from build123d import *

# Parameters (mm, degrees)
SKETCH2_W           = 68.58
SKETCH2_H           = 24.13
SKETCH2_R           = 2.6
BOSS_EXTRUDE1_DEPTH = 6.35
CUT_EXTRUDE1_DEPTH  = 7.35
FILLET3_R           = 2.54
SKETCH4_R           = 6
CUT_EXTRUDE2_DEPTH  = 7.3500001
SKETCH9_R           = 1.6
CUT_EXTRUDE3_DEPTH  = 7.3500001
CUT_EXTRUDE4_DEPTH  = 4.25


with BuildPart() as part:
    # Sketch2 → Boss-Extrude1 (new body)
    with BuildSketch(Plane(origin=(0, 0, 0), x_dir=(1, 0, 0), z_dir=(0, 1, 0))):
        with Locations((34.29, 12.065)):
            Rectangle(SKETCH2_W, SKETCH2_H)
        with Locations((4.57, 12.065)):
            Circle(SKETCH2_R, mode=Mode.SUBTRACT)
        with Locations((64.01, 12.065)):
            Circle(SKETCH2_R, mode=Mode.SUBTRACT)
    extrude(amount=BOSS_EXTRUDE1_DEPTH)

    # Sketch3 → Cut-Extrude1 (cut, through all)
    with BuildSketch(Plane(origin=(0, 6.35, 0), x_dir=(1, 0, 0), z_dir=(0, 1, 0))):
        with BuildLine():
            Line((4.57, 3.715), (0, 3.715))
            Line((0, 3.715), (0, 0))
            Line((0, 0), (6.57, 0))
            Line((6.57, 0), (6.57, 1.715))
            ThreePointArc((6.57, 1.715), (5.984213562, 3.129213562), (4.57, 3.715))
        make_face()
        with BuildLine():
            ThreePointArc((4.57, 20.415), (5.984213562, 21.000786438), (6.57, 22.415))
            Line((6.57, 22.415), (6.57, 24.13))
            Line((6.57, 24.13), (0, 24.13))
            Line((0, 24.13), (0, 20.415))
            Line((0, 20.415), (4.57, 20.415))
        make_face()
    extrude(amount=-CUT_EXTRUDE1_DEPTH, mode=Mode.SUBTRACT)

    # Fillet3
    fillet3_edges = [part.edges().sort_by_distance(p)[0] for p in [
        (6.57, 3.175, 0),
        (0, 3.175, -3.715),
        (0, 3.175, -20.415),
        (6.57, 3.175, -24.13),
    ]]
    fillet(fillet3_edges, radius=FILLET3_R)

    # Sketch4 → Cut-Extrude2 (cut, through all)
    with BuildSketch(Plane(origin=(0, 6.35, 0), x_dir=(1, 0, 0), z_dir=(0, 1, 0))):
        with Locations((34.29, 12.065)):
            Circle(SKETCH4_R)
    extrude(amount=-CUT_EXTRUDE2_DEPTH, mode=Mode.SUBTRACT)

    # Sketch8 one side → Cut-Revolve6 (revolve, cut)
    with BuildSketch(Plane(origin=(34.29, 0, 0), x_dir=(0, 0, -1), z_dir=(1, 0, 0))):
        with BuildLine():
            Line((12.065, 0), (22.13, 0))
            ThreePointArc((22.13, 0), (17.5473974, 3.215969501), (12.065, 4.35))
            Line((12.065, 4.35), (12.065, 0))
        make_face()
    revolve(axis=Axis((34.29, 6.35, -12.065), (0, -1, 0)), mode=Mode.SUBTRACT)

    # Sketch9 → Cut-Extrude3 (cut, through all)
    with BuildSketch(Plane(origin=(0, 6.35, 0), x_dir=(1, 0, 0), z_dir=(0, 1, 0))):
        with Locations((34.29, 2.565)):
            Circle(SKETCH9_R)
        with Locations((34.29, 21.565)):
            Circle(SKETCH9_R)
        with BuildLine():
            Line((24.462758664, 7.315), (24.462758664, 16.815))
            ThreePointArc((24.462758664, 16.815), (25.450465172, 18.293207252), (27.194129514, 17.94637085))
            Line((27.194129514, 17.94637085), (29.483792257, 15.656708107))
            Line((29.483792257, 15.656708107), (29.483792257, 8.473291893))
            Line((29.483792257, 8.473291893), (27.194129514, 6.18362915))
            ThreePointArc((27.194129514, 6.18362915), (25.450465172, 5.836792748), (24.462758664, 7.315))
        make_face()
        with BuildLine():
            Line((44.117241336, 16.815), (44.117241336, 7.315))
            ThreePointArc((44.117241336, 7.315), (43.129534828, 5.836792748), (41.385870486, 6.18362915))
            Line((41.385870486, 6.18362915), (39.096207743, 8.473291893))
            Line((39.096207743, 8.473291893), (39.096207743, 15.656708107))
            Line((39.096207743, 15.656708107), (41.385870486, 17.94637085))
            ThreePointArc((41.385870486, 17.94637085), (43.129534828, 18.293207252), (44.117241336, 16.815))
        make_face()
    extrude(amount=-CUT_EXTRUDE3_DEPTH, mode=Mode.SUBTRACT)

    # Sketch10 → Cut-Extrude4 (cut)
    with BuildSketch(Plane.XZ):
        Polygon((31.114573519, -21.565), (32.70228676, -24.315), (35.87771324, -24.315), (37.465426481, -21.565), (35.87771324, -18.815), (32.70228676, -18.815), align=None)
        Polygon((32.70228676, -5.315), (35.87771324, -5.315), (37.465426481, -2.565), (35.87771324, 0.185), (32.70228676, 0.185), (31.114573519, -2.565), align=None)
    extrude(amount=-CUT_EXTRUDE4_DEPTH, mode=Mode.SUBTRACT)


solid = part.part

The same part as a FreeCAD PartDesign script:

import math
import FreeCAD as App
import Part
import Sketcher

V = App.Vector
Q = App.Units.Quantity


def edges_at(feature, points):
    """Names of the edges that pass closest to the given points."""
    edges = feature.Shape.Edges
    near = lambda p: min(range(len(edges)), key=lambda i: edges[i].distToShape(Part.Vertex(*p))[0])
    return sorted({f"Edge{near(p) + 1}" for p in points})

doc = App.newDocument("Part")
body = doc.addObject("PartDesign::Body", "Body")

# Sketch on XZ plane
sketch1 = doc.addObject("Sketcher::SketchObject", "Sketch")
body.addObject(sketch1)
sketch1.AttachmentSupport = (doc.XZ_Plane, [""])
sketch1.MapMode = "FlatFace"
sketch1.addGeometry([
    Part.LineSegment(V(0, -24.1, 0), V(0, 0, 0)),  # 0
    Part.LineSegment(V(0, 0, 0), V(68.6, 0, 0)),  # 1
    Part.LineSegment(V(68.6, 0, 0), V(68.6, -24.1, 0)),  # 2
    Part.LineSegment(V(68.6, -24.1, 0), V(0, -24.1, 0)),  # 3
    Part.Circle(V(4.6, -12.1, 0), V(0, 0, 1), 2.6),  # 4
    Part.Circle(V(64, -12.1, 0), V(0, 0, 1), 2.6),  # 5
], False)
sketch1.addConstraint([
    Sketcher.Constraint("Coincident", 0, 2, 1, 1),
    Sketcher.Constraint("Coincident", 1, 2, 2, 1),
    Sketcher.Constraint("Coincident", 2, 2, 3, 1),
    Sketcher.Constraint("Coincident", 3, 2, 0, 1),
    Sketcher.Constraint("Vertical", 0),
    Sketcher.Constraint("Horizontal", 1),
    Sketcher.Constraint("Vertical", 2),
    Sketcher.Constraint("Horizontal", 3),
    Sketcher.Constraint("Coincident", 0, 2, -1, 1),
    Sketcher.Constraint("Equal", 4, 5),
    Sketcher.Constraint("Horizontal", 4, 3, 5, 3),
    Sketcher.Constraint("Diameter", 4, 5.2),
    Sketcher.Constraint("DistanceX", 1, 1, 1, 2, 68.58),
    Sketcher.Constraint("DistanceY", 0, 1, 0, 2, 24.13),
    Sketcher.Constraint("DistanceX", -1, 1, 4, 3, 4.57),
    Sketcher.Constraint("DistanceX", -1, 1, 5, 3, 64.01),
    Sketcher.Constraint("DistanceY", 4, 3, -1, 1, 12.065),
])
pad1 = doc.addObject("PartDesign::Pad", "Pad")
body.addObject(pad1)
pad1.Profile = sketch1
pad1.Length = 6.35
pad1.Reversed = True

# Sketch on XZ plane
sketch2 = doc.addObject("Sketcher::SketchObject", "Sketch001")
body.addObject(sketch2)
sketch2.AttachmentSupport = (doc.XZ_Plane, [""])
sketch2.MapMode = "FlatFace"
sketch2.AttachmentOffset = App.Placement(V(0, 0, -6.35), App.Rotation())
sketch2.addGeometry([
    Part.LineSegment(V(4.6, -3.7, 0), V(0, -3.7, 0)),  # 0
    Part.LineSegment(V(0, -3.7, 0), V(0, 0, 0)),  # 1
    Part.LineSegment(V(0, 0, 0), V(6.6, 0, 0)),  # 2
    Part.LineSegment(V(6.6, 0, 0), V(6.6, -1.7, 0)),  # 3
    Part.ArcOfCircle(Part.Circle(V(4.6, -1.7, 0), V(0, 0, 1), 2), math.radians(-90), math.radians(0)),  # 4
    Part.ArcOfCircle(Part.Circle(V(4.6, -22.4, 0), V(0, 0, 1), 2), math.radians(0), math.radians(90)),  # 5
    Part.LineSegment(V(6.6, -22.4, 0), V(6.6, -24.1, 0)),  # 6
    Part.LineSegment(V(6.6, -24.1, 0), V(0, -24.1, 0)),  # 7
    Part.LineSegment(V(0, -24.1, 0), V(0, -20.4, 0)),  # 8
    Part.LineSegment(V(0, -20.4, 0), V(4.6, -20.4, 0)),  # 9
], False)
sketch2.addConstraint([
    Sketcher.Constraint("Coincident", 0, 2, 1, 1),
    Sketcher.Constraint("Coincident", 1, 2, 2, 1),
    Sketcher.Constraint("Coincident", 2, 2, 3, 1),
    Sketcher.Constraint("Tangent", 3, 2, 4, 2),
    Sketcher.Constraint("Tangent", 4, 1, 0, 1),
    Sketcher.Constraint("Tangent", 5, 1, 6, 1),
    Sketcher.Constraint("Coincident", 6, 2, 7, 1),
    Sketcher.Constraint("Coincident", 7, 2, 8, 1),
    Sketcher.Constraint("Coincident", 8, 2, 9, 1),
    Sketcher.Constraint("Tangent", 9, 2, 5, 2),
    Sketcher.Constraint("Horizontal", 0),
    Sketcher.Constraint("Vertical", 1),
    Sketcher.Constraint("Horizontal", 2),
    Sketcher.Constraint("Vertical", 3),
    Sketcher.Constraint("Vertical", 6),
    Sketcher.Constraint("Horizontal", 7),
    Sketcher.Constraint("Vertical", 8),
    Sketcher.Constraint("Horizontal", 9),
    Sketcher.Constraint("Coincident", 1, 2, -1, 1),
    Sketcher.Constraint("Equal", 4, 5),
    Sketcher.Constraint("PointOnObject", 7, 2, -2),
    Sketcher.Constraint("Vertical", 4, 3, 5, 3),
    Sketcher.Constraint("Equal", 3, 6),
    Sketcher.Constraint("Radius", 4, 2.0),
    Sketcher.Constraint("DistanceX", 0, 2, 0, 1, 4.57),
    Sketcher.Constraint("DistanceY", 5, 3, 4, 3, 20.7),
    Sketcher.Constraint("DistanceY", 1, 1, 1, 2, 3.715),
])
pocket1 = doc.addObject("PartDesign::Pocket", "Pocket")
body.addObject(pocket1)
pocket1.Profile = sketch2
pocket1.Type = "ThroughAll"
pocket1.Reversed = True
doc.recompute()

fillet = doc.addObject("PartDesign::Fillet", "Fillet")
body.addObject(fillet)
fillet.Base = (pocket1, edges_at(pocket1, [
    (6.57, 3.175, 0),
    (0, 3.175, -3.715),
    (0, 3.175, -20.415),
    (6.57, 3.175, -24.13),
]))
fillet.Radius = 2.54

# Sketch on XZ plane
sketch3 = doc.addObject("Sketcher::SketchObject", "Sketch002")
body.addObject(sketch3)
sketch3.AttachmentSupport = (doc.XZ_Plane, [""])
sketch3.MapMode = "FlatFace"
sketch3.AttachmentOffset = App.Placement(V(0, 0, -6.35), App.Rotation())
sketch3.addGeometry(Part.Circle(V(34, -12, 0), V(0, 0, 1), 6), False)
sketch3.addConstraint([
    Sketcher.Constraint("Diameter", 0, 12.0),
    Sketcher.Constraint("DistanceX", -1, 1, 0, 3, 34.29),
    Sketcher.Constraint("DistanceY", 0, 3, -1, 1, 12.065),
])
pocket2 = doc.addObject("PartDesign::Pocket", "Pocket001")
body.addObject(pocket2)
pocket2.Profile = sketch3
pocket2.Type = "ThroughAll"
pocket2.Reversed = True

# Sketch on YZ plane
sketch4 = doc.addObject("Sketcher::SketchObject", "Sketch003")
body.addObject(sketch4)
sketch4.AttachmentSupport = (doc.YZ_Plane, [""])
sketch4.MapMode = "FlatFace"
sketch4.AttachmentOffset = App.Placement(V(0, 0, 34.29), App.Rotation())
sketch4.addGeometry([
    Part.LineSegment(V(0, -12.1, 0), V(0, -22.1, 0)),
    Part.ArcOfCircle(Part.Circle(V(-9.5, -12.1, 0), V(0, 0, 1), 13.8), math.radians(-47), math.radians(0)),
    Part.LineSegment(V(4.3, -12.1, 0), V(0, -12.1, 0)),
], False)
sketch4.addGeometry(Part.LineSegment(V(4.3, -12.1, 0), V(-9.5, -12.1, 0)), True)  # axis
sketch4.addConstraint([
    Sketcher.Constraint("Coincident", 0, 2, 1, 1),
    Sketcher.Constraint("Coincident", 1, 2, 2, 1),
    Sketcher.Constraint("Coincident", 2, 2, 0, 1),
    Sketcher.Constraint("Vertical", 0),
    Sketcher.Constraint("Horizontal", 2),
    Sketcher.Constraint("Horizontal", 3),
    Sketcher.Constraint("Coincident", 3, 1, 1, 2),
    Sketcher.Constraint("Coincident", 3, 2, 1, 3),
    Sketcher.Constraint("PointOnObject", 0, 2, -2),
    Sketcher.Constraint("DistanceX", 2, 2, 2, 1, 4.35),
    Sketcher.Constraint("DistanceY", 0, 2, 0, 1, 10.065),
    Sketcher.Constraint("DistanceY", 0, 2, -1, 1, 22.13),
])
groove = doc.addObject("PartDesign::Groove", "Groove")
body.addObject(groove)
groove.Profile = sketch4
groove.ReferenceAxis = (sketch4, ["Axis0"])
groove.Angle = 360

# Sketch on XZ plane
sketch5 = doc.addObject("Sketcher::SketchObject", "Sketch004")
body.addObject(sketch5)
sketch5.AttachmentSupport = (doc.XZ_Plane, [""])
sketch5.MapMode = "FlatFace"
sketch5.AttachmentOffset = App.Placement(V(0, 0, -6.35), App.Rotation())
sketch5.addGeometry([
    Part.Circle(V(34.3, -2.6, 0), V(0, 0, 1), 1.6),  # 0
    Part.Circle(V(34.3, -21.6, 0), V(0, 0, 1), 1.6),  # 1
    Part.LineSegment(V(24.5, -16.8, 0), V(24.5, -7.3, 0)),  # 2
    Part.ArcOfCircle(Part.Circle(V(26.1, -7.3, 0), V(0, 0, 1), 1.6), math.radians(45), math.radians(180)),  # 3
    Part.LineSegment(V(27.2, -6.2, 0), V(29.5, -8.5, 0)),  # 4
    Part.LineSegment(V(29.5, -8.5, 0), V(29.5, -15.7, 0)),  # 5
    Part.LineSegment(V(29.5, -15.7, 0), V(27.2, -17.9, 0)),  # 6
    Part.ArcOfCircle(Part.Circle(V(26.1, -16.8, 0), V(0, 0, 1), 1.6), math.radians(180), math.radians(315)),  # 7
    Part.LineSegment(V(44.1, -7.3, 0), V(44.1, -16.8, 0)),  # 8
    Part.ArcOfCircle(Part.Circle(V(42.5, -16.8, 0), V(0, 0, 1), 1.6), math.radians(-135), math.radians(0)),  # 9
    Part.LineSegment(V(41.4, -17.9, 0), V(39.1, -15.7, 0)),  # 10
    Part.LineSegment(V(39.1, -15.7, 0), V(39.1, -8.5, 0)),  # 11
    Part.LineSegment(V(39.1, -8.5, 0), V(41.4, -6.2, 0)),  # 12
    Part.ArcOfCircle(Part.Circle(V(42.5, -7.3, 0), V(0, 0, 1), 1.6), math.radians(0), math.radians(135)),  # 13
], False)
sketch5.addConstraint([
    Sketcher.Constraint("Tangent", 2, 2, 3, 2),
    Sketcher.Constraint("Tangent", 3, 1, 4, 1),
    Sketcher.Constraint("Coincident", 4, 2, 5, 1),
    Sketcher.Constraint("Coincident", 5, 2, 6, 1),
    Sketcher.Constraint("Tangent", 6, 2, 7, 2),
    Sketcher.Constraint("Tangent", 7, 1, 2, 1),
    Sketcher.Constraint("Tangent", 8, 2, 9, 2),
    Sketcher.Constraint("Tangent", 9, 1, 10, 1),
    Sketcher.Constraint("Coincident", 10, 2, 11, 1),
    Sketcher.Constraint("Coincident", 11, 2, 12, 1),
    Sketcher.Constraint("Tangent", 12, 2, 13, 2),
    Sketcher.Constraint("Tangent", 13, 1, 8, 1),
    Sketcher.Constraint("Vertical", 2),
    Sketcher.Constraint("Vertical", 5),
    Sketcher.Constraint("Vertical", 8),
    Sketcher.Constraint("Vertical", 11),
    Sketcher.Constraint("Equal", 0, 1),
    Sketcher.Constraint("Equal", 1, 3),
    Sketcher.Constraint("Equal", 3, 7),
    Sketcher.Constraint("Equal", 7, 9),
    Sketcher.Constraint("Equal", 9, 13),
    Sketcher.Constraint("Perpendicular", 4, 6),
    Sketcher.Constraint("Perpendicular", 6, 10),
    Sketcher.Constraint("Perpendicular", 10, 12),
    Sketcher.Constraint("Horizontal", 7, 3, 9, 3),
    Sketcher.Constraint("Horizontal", 3, 3, 13, 3),
    Sketcher.Constraint("Horizontal", 6, 2, 9, 1),
    Sketcher.Constraint("Horizontal", 5, 2, 10, 2),
    Sketcher.Constraint("Vertical", 0, 3, 1, 3),
    Sketcher.Constraint("Diameter", 0, 3.2),
    Sketcher.Constraint("DistanceY", 2, 1, 2, 2, 9.5),
    Sketcher.Constraint("DistanceY", 1, 3, 0, 3, 19.0),
    Sketcher.Constraint("DistanceX", -1, 1, 0, 3, 34.29),
    Sketcher.Constraint("DistanceY", 3, 3, 0, 3, 4.75),
    Sketcher.Constraint("DistanceY", 0, 3, -1, 1, 2.565),
    Sketcher.Constraint("DistanceY", 5, 2, 5, 1, 7.183416),
    Sketcher.Constraint("DistanceX", -1, 1, 3, 3, 26.062759),
    Sketcher.Constraint("DistanceX", -1, 1, 9, 3, 42.517241),
])
pocket3 = doc.addObject("PartDesign::Pocket", "Pocket002")
body.addObject(pocket3)
pocket3.Profile = sketch5
pocket3.Type = "ThroughAll"
pocket3.Reversed = True

# Sketch on XZ plane
sketch6 = doc.addObject("Sketcher::SketchObject", "Sketch005")
body.addObject(sketch6)
sketch6.AttachmentSupport = (doc.XZ_Plane, [""])
sketch6.MapMode = "FlatFace"
sketch6.addGeometry([
    Part.LineSegment(V(31.1, -21.6, 0), V(32.7, -24.3, 0)),  # 0
    Part.LineSegment(V(32.7, -24.3, 0), V(35.9, -24.3, 0)),  # 1
    Part.LineSegment(V(35.9, -24.3, 0), V(37.5, -21.6, 0)),  # 2
    Part.LineSegment(V(37.5, -21.6, 0), V(35.9, -18.8, 0)),  # 3
    Part.LineSegment(V(35.9, -18.8, 0), V(32.7, -18.8, 0)),  # 4
    Part.LineSegment(V(32.7, -18.8, 0), V(31.1, -21.6, 0)),  # 5
    Part.LineSegment(V(32.7, -5.3, 0), V(35.9, -5.3, 0)),  # 6
    Part.LineSegment(V(35.9, -5.3, 0), V(37.5, -2.6, 0)),  # 7
    Part.LineSegment(V(37.5, -2.6, 0), V(35.9, 0.2, 0)),  # 8
    Part.LineSegment(V(35.9, 0.2, 0), V(32.7, 0.2, 0)),  # 9
    Part.LineSegment(V(32.7, 0.2, 0), V(31.1, -2.6, 0)),  # 10
    Part.LineSegment(V(31.1, -2.6, 0), V(32.7, -5.3, 0)),  # 11
], False)
sketch6.addConstraint([
    Sketcher.Constraint("Coincident", 0, 2, 1, 1),
    Sketcher.Constraint("Coincident", 1, 2, 2, 1),
    Sketcher.Constraint("Coincident", 2, 2, 3, 1),
    Sketcher.Constraint("Coincident", 3, 2, 4, 1),
    Sketcher.Constraint("Coincident", 4, 2, 5, 1),
    Sketcher.Constraint("Coincident", 5, 2, 0, 1),
    Sketcher.Constraint("Coincident", 6, 2, 7, 1),
    Sketcher.Constraint("Coincident", 7, 2, 8, 1),
    Sketcher.Constraint("Coincident", 8, 2, 9, 1),
    Sketcher.Constraint("Coincident", 9, 2, 10, 1),
    Sketcher.Constraint("Coincident", 10, 2, 11, 1),
    Sketcher.Constraint("Coincident", 11, 2, 6, 1),
    Sketcher.Constraint("Horizontal", 1),
    Sketcher.Constraint("Horizontal", 4),
    Sketcher.Constraint("Horizontal", 6),
    Sketcher.Constraint("Horizontal", 9),
    Sketcher.Constraint("Parallel", 0, 3),
    Sketcher.Constraint("Parallel", 2, 5),
    Sketcher.Constraint("Parallel", 5, 7),
    Sketcher.Constraint("Parallel", 3, 8),
    Sketcher.Constraint("Parallel", 7, 10),
    Sketcher.Constraint("Parallel", 8, 11),
    Sketcher.Constraint("Horizontal", 2, 2, 5, 2),
    Sketcher.Constraint("Horizontal", 7, 2, 10, 2),
    Sketcher.Constraint("Vertical", 1, 2, 3, 2),
    Sketcher.Constraint("Vertical", 0, 2, 4, 2),
    Sketcher.Constraint("Vertical", 3, 2, 6, 2),
    Sketcher.Constraint("Vertical", 2, 2, 7, 2),
    Sketcher.Constraint("Vertical", 6, 2, 8, 2),
    Sketcher.Constraint("Vertical", 4, 2, 9, 2),
    Sketcher.Constraint("Angle", 0, Q("-60 deg")),
    Sketcher.Constraint("DistanceY", 1, 2, 6, 2, 19.0),
    Sketcher.Constraint("DistanceY", 1, 2, 3, 2, 5.5),
    Sketcher.Constraint("DistanceY", 0, 2, -1, 1, 24.315),
    Sketcher.Constraint("DistanceX", 1, 1, 1, 2, 3.175426),
    Sketcher.Constraint("DistanceX", -1, 1, 0, 2, 32.702287),
])
pocket4 = doc.addObject("PartDesign::Pocket", "Pocket003")
body.addObject(pocket4)
pocket4.Profile = sketch6
pocket4.Length = 4.25

doc.recompute()
